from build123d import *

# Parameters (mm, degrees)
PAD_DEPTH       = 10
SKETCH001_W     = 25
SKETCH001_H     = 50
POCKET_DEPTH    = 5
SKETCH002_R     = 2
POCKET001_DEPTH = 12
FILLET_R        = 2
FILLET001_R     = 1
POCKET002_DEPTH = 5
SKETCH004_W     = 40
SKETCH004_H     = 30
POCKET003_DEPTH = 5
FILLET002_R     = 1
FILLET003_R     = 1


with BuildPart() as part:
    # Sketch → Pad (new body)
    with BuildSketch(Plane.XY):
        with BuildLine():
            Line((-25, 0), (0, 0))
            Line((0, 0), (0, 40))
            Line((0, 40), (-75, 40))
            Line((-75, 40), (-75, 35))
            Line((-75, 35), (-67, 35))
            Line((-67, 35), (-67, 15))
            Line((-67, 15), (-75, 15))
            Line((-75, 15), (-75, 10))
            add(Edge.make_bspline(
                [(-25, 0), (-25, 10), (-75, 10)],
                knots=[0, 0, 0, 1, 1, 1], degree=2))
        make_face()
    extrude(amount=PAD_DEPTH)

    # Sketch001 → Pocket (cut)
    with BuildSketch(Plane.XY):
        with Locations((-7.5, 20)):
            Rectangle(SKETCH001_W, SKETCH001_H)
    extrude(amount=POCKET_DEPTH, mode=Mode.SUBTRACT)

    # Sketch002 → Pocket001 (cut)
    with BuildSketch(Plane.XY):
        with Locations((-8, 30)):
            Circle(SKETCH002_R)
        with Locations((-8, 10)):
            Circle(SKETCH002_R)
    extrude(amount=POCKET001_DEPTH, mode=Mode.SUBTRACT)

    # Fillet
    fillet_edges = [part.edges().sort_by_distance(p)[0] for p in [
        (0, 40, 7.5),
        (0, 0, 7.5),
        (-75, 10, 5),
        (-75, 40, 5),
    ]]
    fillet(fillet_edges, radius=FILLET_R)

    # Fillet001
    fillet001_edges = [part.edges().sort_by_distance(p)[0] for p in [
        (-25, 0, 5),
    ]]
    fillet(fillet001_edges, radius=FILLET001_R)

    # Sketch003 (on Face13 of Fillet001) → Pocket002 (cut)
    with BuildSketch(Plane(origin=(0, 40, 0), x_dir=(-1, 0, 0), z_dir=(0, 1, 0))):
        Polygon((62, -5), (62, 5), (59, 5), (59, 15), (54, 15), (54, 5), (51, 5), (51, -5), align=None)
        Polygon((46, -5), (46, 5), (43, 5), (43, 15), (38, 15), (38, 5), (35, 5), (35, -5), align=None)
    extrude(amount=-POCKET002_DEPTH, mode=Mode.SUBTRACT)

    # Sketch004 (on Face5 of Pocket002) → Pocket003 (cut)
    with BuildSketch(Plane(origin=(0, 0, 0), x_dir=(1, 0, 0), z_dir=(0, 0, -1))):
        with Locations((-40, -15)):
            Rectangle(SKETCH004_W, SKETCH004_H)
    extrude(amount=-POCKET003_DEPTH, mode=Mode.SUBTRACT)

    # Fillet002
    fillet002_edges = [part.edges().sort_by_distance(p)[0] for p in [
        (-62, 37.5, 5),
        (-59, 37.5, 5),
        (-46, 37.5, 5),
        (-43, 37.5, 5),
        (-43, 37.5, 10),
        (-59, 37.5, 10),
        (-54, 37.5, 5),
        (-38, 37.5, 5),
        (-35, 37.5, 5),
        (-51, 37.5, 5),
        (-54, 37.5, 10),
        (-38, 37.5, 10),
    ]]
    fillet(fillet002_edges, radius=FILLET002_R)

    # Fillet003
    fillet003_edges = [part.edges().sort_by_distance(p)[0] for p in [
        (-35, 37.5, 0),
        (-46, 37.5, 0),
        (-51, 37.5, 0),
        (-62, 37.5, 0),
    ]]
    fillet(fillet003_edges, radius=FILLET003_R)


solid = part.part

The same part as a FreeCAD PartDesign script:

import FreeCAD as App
import Part
import Sketcher

V = App.Vector


def edges_at(feature, points):
    """Names of the edges that pass closest to the given points."""
    edges = feature.Shape.Edges
    near = lambda p: min(range(len(edges)), key=lambda i: edges[i].distToShape(Part.Vertex(*p))[0])
    return sorted({f"Edge{near(p) + 1}" for p in points})

doc = App.newDocument("Part")
body = doc.addObject("PartDesign::Body", "Body")

sketch1 = doc.addObject("Sketcher::SketchObject", "Sketch")
body.addObject(sketch1)
sketch1.AttachmentSupport = (doc.XY_Plane, [""])
sketch1.MapMode = "FlatFace"
sketch1.addGeometry([
    Part.LineSegment(V(-25, 0, 0), V(0, 0, 0)),
    Part.LineSegment(V(0, 0, 0), V(0, 40, 0)),
    Part.LineSegment(V(0, 40, 0), V(-75, 40, 0)),
    Part.LineSegment(V(-75, 40, 0), V(-75, 35, 0)),
    Part.LineSegment(V(-75, 35, 0), V(-67, 35, 0)),
    Part.LineSegment(V(-67, 35, 0), V(-67, 15, 0)),
    Part.LineSegment(V(-67, 15, 0), V(-75, 15, 0)),
    Part.LineSegment(V(-75, 15, 0), V(-75, 10, 0)),
    Part.BSplineCurve([V(-25, 0, 0), V(-25, 10, 0), V(-75, 10, 0)], [3, 3], [0, 1], False, 2, [1, 1, 1], False),
], False)
sketch1.addConstraint([
    Sketcher.Constraint("Block", 8),
    Sketcher.Constraint("Coincident", 0, 2, 1, 1),
    Sketcher.Constraint("Coincident", 1, 2, 2, 1),
    Sketcher.Constraint("Coincident", 2, 2, 3, 1),
    Sketcher.Constraint("Coincident", 3, 2, 4, 1),
    Sketcher.Constraint("Coincident", 4, 2, 5, 1),
    Sketcher.Constraint("Coincident", 5, 2, 6, 1),
    Sketcher.Constraint("Coincident", 6, 2, 7, 1),
    Sketcher.Constraint("Coincident", 7, 2, 8, 2),
    Sketcher.Constraint("Coincident", 8, 1, 0, 1),
    Sketcher.Constraint("Horizontal", 0),
    Sketcher.Constraint("Vertical", 1),
    Sketcher.Constraint("Horizontal", 2),
    Sketcher.Constraint("Vertical", 3),
    Sketcher.Constraint("Horizontal", 4),
    Sketcher.Constraint("Vertical", 5),
    Sketcher.Constraint("Horizontal", 6),
    Sketcher.Constraint("Vertical", 7),
    Sketcher.Constraint("PointOnObject", 1, 2, -2),
    Sketcher.Constraint("Vertical", 3, 2, 6, 2),
    Sketcher.Constraint("Equal", 3, 7),
    Sketcher.Constraint("DistanceX", 4, 1, 4, 2, 8.0),
    Sketcher.Constraint("DistanceY", 1, 1, 1, 2, 40.0),
    Sketcher.Constraint("DistanceY", 3, 2, 3, 1, 5.0),
])
pad1 = doc.addObject("PartDesign::Pad", "Pad")
body.addObject(pad1)
pad1.Profile = sketch1
pad1.Length = 10

sketch2 = doc.addObject("Sketcher::SketchObject", "Sketch001")
body.addObject(sketch2)
sketch2.AttachmentSupport = (doc.XY_Plane, [""])
sketch2.MapMode = "FlatFace"
sketch2.addGeometry([
    Part.LineSegment(V(-20, 45, 0), V(-20, -5, 0)),
    Part.LineSegment(V(-20, -5, 0), V(5, -5, 0)),
    Part.LineSegment(V(5, -5, 0), V(5, 45, 0)),
    Part.LineSegment(V(5, 45, 0), V(-20, 45, 0)),
], False)
sketch2.addConstraint([
    Sketcher.Constraint("Coincident", 0, 2, 1, 1),
    Sketcher.Constraint("Coincident", 1, 2, 2, 1),
    Sketcher.Constraint("Coincident", 2, 2, 3, 1),
    Sketcher.Constraint("Coincident", 3, 2, 0, 1),
    Sketcher.Constraint("Vertical", 0),
    Sketcher.Constraint("Horizontal", 1),
    Sketcher.Constraint("Vertical", 2),
    Sketcher.Constraint("Horizontal", 3),
    Sketcher.Constraint("DistanceX", 1, 1, 1, 2, 25.0),
    Sketcher.Constraint("DistanceY", 0, 2, 0, 1, 50.0),
    Sketcher.Constraint("DistanceX", 0, 2, -1, 1, 20.0),
    Sketcher.Constraint("DistanceY", 0, 2, -1, 1, 5.0),
])
pocket1 = doc.addObject("PartDesign::Pocket", "Pocket")
body.addObject(pocket1)
pocket1.Profile = sketch2
pocket1.Length = 5
pocket1.Reversed = True

sketch3 = doc.addObject("Sketcher::SketchObject", "Sketch002")
body.addObject(sketch3)
sketch3.AttachmentSupport = (doc.XY_Plane, [""])
sketch3.MapMode = "FlatFace"
sketch3.addGeometry([
    Part.Circle(V(-8, 30, 0), V(0, 0, 1), 2),
    Part.Circle(V(-8, 10, 0), V(0, 0, 1), 2),
], False)
sketch3.addConstraint([
    Sketcher.Constraint("Equal", 0, 1),
    Sketcher.Constraint("Vertical", 0, 3, 1, 3),
    Sketcher.Constraint("Diameter", 0, 4.0),
    Sketcher.Constraint("DistanceX", 0, 3, -1, 1, 8.0),
    Sketcher.Constraint("DistanceY", -1, 1, 0, 3, 30.0),
    Sketcher.Constraint("DistanceY", -1, 1, 1, 3, 10.0),
])
pocket2 = doc.addObject("PartDesign::Pocket", "Pocket001")
body.addObject(pocket2)
pocket2.Profile = sketch3
pocket2.Length = 12
pocket2.Reversed = True
doc.recompute()

fillet = doc.addObject("PartDesign::Fillet", "Fillet")
body.addObject(fillet)
fillet.Base = (pocket2, edges_at(pocket2, [
    (0, 40, 7.5),
    (0, 0, 7.5),
    (-75, 10, 5),
    (-75, 40, 5),
]))
fillet.Radius = 2
doc.recompute()

fillet2 = doc.addObject("PartDesign::Fillet", "Fillet001")
body.addObject(fillet2)
fillet2.Base = (fillet, edges_at(fillet, [(-25, 0, 5)]))
fillet2.Radius = 1

sketch4 = doc.addObject("Sketcher::SketchObject", "Sketch003")
body.addObject(sketch4)
sketch4.AttachmentSupport = (doc.XZ_Plane, [""])
sketch4.MapMode = "FlatFace"
sketch4.AttachmentOffset = App.Placement(V(0, 0, -40), App.Rotation())
sketch4.addGeometry([
    Part.LineSegment(V(-62, -5, 0), V(-62, 5, 0)),
    Part.LineSegment(V(-62, 5, 0), V(-59, 5, 0)),
    Part.LineSegment(V(-59, 5, 0), V(-59, 15, 0)),
    Part.LineSegment(V(-59, 15, 0), V(-54, 15, 0)),
    Part.LineSegment(V(-54, 15, 0), V(-54, 5, 0)),
    Part.LineSegment(V(-54, 5, 0), V(-51, 5, 0)),
    Part.LineSegment(V(-51, 5, 0), V(-51, -5, 0)),
    Part.LineSegment(V(-51, -5, 0), V(-62, -5, 0)),
    Part.LineSegment(V(-46, -5, 0), V(-46, 5, 0)),
    Part.LineSegment(V(-46, 5, 0), V(-43, 5, 0)),
    Part.LineSegment(V(-43, 5, 0), V(-43, 15, 0)),
    Part.LineSegment(V(-43, 15, 0), V(-38, 15, 0)),
    Part.LineSegment(V(-38, 15, 0), V(-38, 5, 0)),
    Part.LineSegment(V(-38, 5, 0), V(-35, 5, 0)),
    Part.LineSegment(V(-35, 5, 0), V(-35, -5, 0)),
    Part.LineSegment(V(-35, -5, 0), V(-46, -5, 0)),
], False)
sketch4.addConstraint([
    Sketcher.Constraint("Coincident", 0, 2, 1, 1),
    Sketcher.Constraint("Coincident", 1, 2, 2, 1),
    Sketcher.Constraint("Coincident", 2, 2, 3, 1),
    Sketcher.Constraint("Coincident", 3, 2, 4, 1),
    Sketcher.Constraint("Coincident", 4, 2, 5, 1),
    Sketcher.Constraint("Coincident", 5, 2, 6, 1),
    Sketcher.Constraint("Coincident", 6, 2, 7, 1),
    Sketcher.Constraint("Coincident", 7, 2, 0, 1),
    Sketcher.Constraint("Coincident", 8, 2, 9, 1),
    Sketcher.Constraint("Coincident", 9, 2, 10, 1),
    Sketcher.Constraint("Coincident", 10, 2, 11, 1),
    Sketcher.Constraint("Coincident", 11, 2, 12, 1),
    Sketcher.Constraint("Coincident", 12, 2, 13, 1),
    Sketcher.Constraint("Coincident", 13, 2, 14, 1),
    Sketcher.Constraint("Coincident", 14, 2, 15, 1),
    Sketcher.Constraint("Coincident", 15, 2, 8, 1),
    Sketcher.Constraint("Vertical", 0),
    Sketcher.Constraint("Horizontal", 1),
    Sketcher.Constraint("Vertical", 2),
    Sketcher.Constraint("Horizontal", 3),
    Sketcher.Constraint("Vertical", 4),
    Sketcher.Constraint("Horizontal", 5),
    Sketcher.Constraint("Vertical", 6),
    Sketcher.Constraint("Horizontal", 7),
    Sketcher.Constraint("Vertical", 8),
    Sketcher.Constraint("Horizontal", 9),
    Sketcher.Constraint("Vertical", 10),
    Sketcher.Constraint("Horizontal", 11),
    Sketcher.Constraint("Vertical", 12),
    Sketcher.Constraint("Horizontal", 13),
    Sketcher.Constraint("Vertical", 14),
    Sketcher.Constraint("Horizontal", 15),
    Sketcher.Constraint("Horizontal", 1, 2, 4, 2),
    Sketcher.Constraint("Horizontal", 5, 2, 8, 2),
    Sketcher.Constraint("Horizontal", 3, 2, 10, 2),
    Sketcher.Constraint("Horizontal", 9, 2, 12, 2),
    Sketcher.Constraint("Horizontal", 7, 2, 14, 2),
    Sketcher.Constraint("Equal", 1, 5),
    Sketcher.Constraint("Equal", 5, 9),
    Sketcher.Constraint("Equal", 3, 11),
    Sketcher.Constraint("Equal", 9, 13),
    Sketcher.Constraint("Equal", 0, 2),
    Sketcher.Constraint("DistanceX", 1, 1, 1, 2, 3.0),
    Sketcher.Constraint("DistanceX", 3, 1, 3, 2, 5.0),
    Sketcher.Constraint("DistanceY", 0, 1, 0, 2, 10.0),
    Sketcher.Constraint("DistanceX", 0, 2, -1, 1, 62.0),
    Sketcher.Constraint("DistanceY", -1, 1, 0, 2, 5.0),
    Sketcher.Constraint("DistanceX", 8, 2, -1, 1, 46.0),
])
pocket3 = doc.addObject("PartDesign::Pocket", "Pocket002")
body.addObject(pocket3)
pocket3.Profile = sketch4
pocket3.Length = 5
pocket3.Reversed = True

sketch5 = doc.addObject("Sketcher::SketchObject", "Sketch004")
body.addObject(sketch5)
sketch5.AttachmentSupport = (doc.XY_Plane, [""])
sketch5.MapMode = "FlatFace"
sketch5.addGeometry([
    Part.LineSegment(V(-60, 0, 0), V(-60, 30, 0)),
    Part.LineSegment(V(-60, 30, 0), V(-20, 30, 0)),
    Part.LineSegment(V(-20, 30, 0), V(-20, 0, 0)),
    Part.LineSegment(V(-20, 0, 0), V(-60, 0, 0)),
], False)
sketch5.addConstraint([
    Sketcher.Constraint("Coincident", 0, 2, 1, 1),
    Sketcher.Constraint("Coincident", 1, 2, 2, 1),
    Sketcher.Constraint("Coincident", 2, 2, 3, 1),
    Sketcher.Constraint("Coincident", 3, 2, 0, 1),
    Sketcher.Constraint("Vertical", 0),
    Sketcher.Constraint("Horizontal", 1),
    Sketcher.Constraint("Vertical", 2),
    Sketcher.Constraint("Horizontal", 3),
    Sketcher.Constraint("PointOnObject", 2, 2, -1),
    Sketcher.Constraint("DistanceX", 1, 1, 1, 2, 40.0),
    Sketcher.Constraint("DistanceY", 0, 1, 0, 2, 30.0),
    Sketcher.Constraint("DistanceX", 0, 2, -1, 1, 60.0),
])
pocket4 = doc.addObject("PartDesign::Pocket", "Pocket003")
body.addObject(pocket4)
pocket4.Profile = sketch5
pocket4.Length = 5
pocket4.Reversed = True
doc.recompute()

fillet3 = doc.addObject("PartDesign::Fillet", "Fillet002")
body.addObject(fillet3)
fillet3.Base = (pocket4, edges_at(pocket4, [
    (-62, 37.5, 5),
    (-59, 37.5, 5),
    (-46, 37.5, 5),
    (-43, 37.5, 5),
    (-43, 37.5, 10),
    (-59, 37.5, 10),
    (-54, 37.5, 5),
    (-38, 37.5, 5),
    (-35, 37.5, 5),
    (-51, 37.5, 5),
    (-54, 37.5, 10),
    (-38, 37.5, 10),
]))
fillet3.Radius = 1
doc.recompute()

fillet4 = doc.addObject("PartDesign::Fillet", "Fillet003")
body.addObject(fillet4)
fillet4.Base = (fillet3, edges_at(fillet3, [
    (-35, 37.5, 0),
    (-46, 37.5, 0),
    (-51, 37.5, 0),
    (-62, 37.5, 0),
]))
fillet4.Radius = 1

doc.recompute()
